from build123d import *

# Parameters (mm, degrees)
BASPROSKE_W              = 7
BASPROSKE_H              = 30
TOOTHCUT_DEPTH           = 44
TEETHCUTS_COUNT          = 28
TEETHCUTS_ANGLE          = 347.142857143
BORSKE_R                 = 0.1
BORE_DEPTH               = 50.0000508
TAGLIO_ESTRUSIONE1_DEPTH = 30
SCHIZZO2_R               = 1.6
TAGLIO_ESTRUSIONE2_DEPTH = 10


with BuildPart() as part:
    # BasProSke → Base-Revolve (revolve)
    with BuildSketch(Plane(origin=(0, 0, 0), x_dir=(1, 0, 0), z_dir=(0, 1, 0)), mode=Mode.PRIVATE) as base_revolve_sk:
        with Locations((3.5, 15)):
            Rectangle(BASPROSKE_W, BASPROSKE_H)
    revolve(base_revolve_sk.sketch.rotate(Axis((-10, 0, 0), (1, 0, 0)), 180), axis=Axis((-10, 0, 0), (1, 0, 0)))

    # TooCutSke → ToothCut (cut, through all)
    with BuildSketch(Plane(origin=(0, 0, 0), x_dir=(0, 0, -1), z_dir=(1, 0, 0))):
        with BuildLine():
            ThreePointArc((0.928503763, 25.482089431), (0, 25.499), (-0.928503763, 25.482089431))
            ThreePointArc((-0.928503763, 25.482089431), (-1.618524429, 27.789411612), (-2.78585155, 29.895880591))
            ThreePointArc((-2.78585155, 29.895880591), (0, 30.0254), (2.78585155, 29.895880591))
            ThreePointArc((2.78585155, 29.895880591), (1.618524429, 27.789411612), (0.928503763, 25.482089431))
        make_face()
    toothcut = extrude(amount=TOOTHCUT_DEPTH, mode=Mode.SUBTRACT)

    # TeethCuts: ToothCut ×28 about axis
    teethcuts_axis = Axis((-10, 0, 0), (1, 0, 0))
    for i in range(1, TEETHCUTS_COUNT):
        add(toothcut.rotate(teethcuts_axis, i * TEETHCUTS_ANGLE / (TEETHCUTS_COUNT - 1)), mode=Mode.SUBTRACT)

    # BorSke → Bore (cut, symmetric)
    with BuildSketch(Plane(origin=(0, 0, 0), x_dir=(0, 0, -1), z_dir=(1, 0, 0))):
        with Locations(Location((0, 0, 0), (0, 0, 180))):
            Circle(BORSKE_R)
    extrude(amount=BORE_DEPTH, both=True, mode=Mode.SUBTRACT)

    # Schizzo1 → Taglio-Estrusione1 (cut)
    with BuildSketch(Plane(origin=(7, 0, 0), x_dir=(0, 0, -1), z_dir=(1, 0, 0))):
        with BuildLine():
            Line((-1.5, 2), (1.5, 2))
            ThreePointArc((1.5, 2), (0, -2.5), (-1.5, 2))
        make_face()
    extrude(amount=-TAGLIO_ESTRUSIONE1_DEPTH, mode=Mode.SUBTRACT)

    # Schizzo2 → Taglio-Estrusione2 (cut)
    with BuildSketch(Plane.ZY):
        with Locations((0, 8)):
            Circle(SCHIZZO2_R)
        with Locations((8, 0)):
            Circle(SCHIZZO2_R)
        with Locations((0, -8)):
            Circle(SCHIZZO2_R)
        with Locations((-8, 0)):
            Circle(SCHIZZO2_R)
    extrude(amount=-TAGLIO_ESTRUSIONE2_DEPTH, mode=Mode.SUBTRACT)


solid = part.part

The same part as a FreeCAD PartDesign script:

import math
import FreeCAD as App
import Part
import Sketcher


def add_polygon(sketch, points):
    """Adds a closed chain of lines whose ends are joined by coincident constraints."""
    first, n = sketch.GeometryCount, len(points)
    for a, b in zip(points, points[1:] + points[:1]):
        sketch.addGeometry(Part.LineSegment(App.Vector(*a, 0), App.Vector(*b, 0)), False)
    for i in range(n):
        sketch.addConstraint(Sketcher.Constraint("Coincident", first + i, 2, first + (i + 1) % n, 1))

doc = App.newDocument("Part")
body = doc.addObject("PartDesign::Body", "Body")

# Sketch on XZ plane
sketch1 = body.newObject("Sketcher::SketchObject", "Sketch")
sketch1.AttachmentSupport = (doc.getObject("XZ_Plane"), [""])
sketch1.MapMode = "FlatFace"
add_polygon(sketch1, [(0, -30), (0, 0), (7, 0), (7, -30)])  # lines 0-3
sketch1.addConstraint([
    Sketcher.Constraint("Vertical", 0),
    Sketcher.Constraint("Horizontal", 1),
    Sketcher.Constraint("Vertical", 2),
    Sketcher.Constraint("Horizontal", 3),
    Sketcher.Constraint("Coincident", 0, 2, -1, 1),
    Sketcher.Constraint("DistanceX", 1, 1, 1, 2, 7.0),
    Sketcher.Constraint("DistanceY", 0, 1, 0, 2, 30.0),
])
revolution = body.newObject("PartDesign::Revolution", "Revolution")
revolution.Profile = sketch1
revolution.ReferenceAxis = (sketch1, ["H_Axis"])
revolution.Angle = 360

# Sketch on YZ plane
sketch2 = body.newObject("Sketcher::SketchObject", "Sketch001")
sketch2.AttachmentSupport = (doc.getObject("YZ_Plane"), [""])
sketch2.MapMode = "FlatFace"
sketch2.addGeometry([
    Part.ArcOfCircle(Part.Circle(App.Vector(0, 0, 0), App.Vector(0, 0, 1), 25.5), math.radians(-2.09), math.radians(2.09)),
    Part.ArcOfCircle(Part.Circle(App.Vector(23.4, -11.9, 0), App.Vector(0, 0, 1), 11.2), math.radians(55), math.radians(80)),
    Part.ArcOfCircle(Part.Circle(App.Vector(0, 0, 0), App.Vector(0, 0, 1), 30), math.radians(-5.32), math.radians(5.32)),
    Part.ArcOfCircle(Part.Circle(App.Vector(23.4, 11.9, 0), App.Vector(0, 0, 1), 11.2), math.radians(-80), math.radians(-55)),
], False)
sketch2.addConstraint([
    Sketcher.Constraint("Coincident", 0, 1, 1, 2),
    Sketcher.Constraint("Coincident", 1, 1, 2, 1),
    Sketcher.Constraint("Coincident", 2, 2, 3, 2),
    Sketcher.Constraint("Coincident", 3, 1, 0, 2),
    Sketcher.Constraint("Coincident", 0, 3, -1, 1),
    Sketcher.Constraint("Coincident", 2, 3, -1, 1),
    Sketcher.Constraint("Equal", 1, 3),
    Sketcher.Constraint("Symmetric", 1, 3, 3, 3, -1),
    Sketcher.Constraint("Radius", 1, 11.2),
    Sketcher.Constraint("Radius", 0, 25.499),
    Sketcher.Constraint("Radius", 2, 30.0254),
    Sketcher.Constraint("DistanceY", 1, 3, 1, 1, 9.155901),
    Sketcher.Constraint("DistanceX", -1, 1, 1, 3, 23.44534),
])
pocket1 = body.newObject("PartDesign::Pocket", "Pocket")
pocket1.Profile = sketch2
pocket1.Type = "ThroughAll"
pocket1.Reversed = True
doc.recompute()

polarpattern = body.newObject("PartDesign::PolarPattern", "PolarPattern")
polarpattern.Originals = [pocket1]
polarpattern.Axis = (doc.getObject("X_Axis"), [""])
polarpattern.Angle = 360
polarpattern.Occurrences = 28
body.Tip = polarpattern

# Sketch on YZ plane
sketch3 = body.newObject("Sketcher::SketchObject", "Sketch002")
sketch3.AttachmentSupport = (doc.getObject("YZ_Plane"), [""])
sketch3.MapMode = "FlatFace"
sketch3.addGeometry(Part.Circle(App.Vector(0, 0, 0), App.Vector(0, 0, 1), 0.1), False)
sketch3.addConstraint([
    Sketcher.Constraint("Coincident", 0, 3, -1, 1),
    Sketcher.Constraint("Diameter", 0, 0.2),
])
pocket2 = body.newObject("PartDesign::Pocket", "Pocket001")
pocket2.Profile = sketch3
pocket2.Length = 100.000102
pocket2.Midplane = True

# Sketch on YZ plane
sketch4 = body.newObject("Sketcher::SketchObject", "Sketch003")
sketch4.AttachmentSupport = (doc.getObject("YZ_Plane"), [""])
sketch4.MapMode = "FlatFace"
sketch4.AttachmentOffset = App.Placement(App.Vector(0, 0, 7), App.Rotation())
sketch4.addGeometry([
    Part.LineSegment(App.Vector(2, -1.5, 0), App.Vector(2, 1.5, 0)),
    Part.ArcOfCircle(Part.Circle(App.Vector(0, 0, 0), App.Vector(0, 0, 1), 2.5), math.radians(37), math.radians(323)),
], False)
sketch4.addConstraint([
    Sketcher.Constraint("Coincident", 0, 1, 1, 2),
    Sketcher.Constraint("Coincident", 1, 1, 0, 2),
    Sketcher.Constraint("Vertical", 0),
    Sketcher.Constraint("Coincident", 1, 3, -1, 1),
    Sketcher.Constraint("Radius", 1, 2.5),
    Sketcher.Constraint("DistanceY", 0, 1, 0, 2, 3.0),
])
pocket3 = body.newObject("PartDesign::Pocket", "Pocket002")
pocket3.Profile = sketch4
pocket3.Length = 30

# Sketch on YZ plane
sketch5 = body.newObject("Sketcher::SketchObject", "Sketch004")
sketch5.AttachmentSupport = (doc.getObject("YZ_Plane"), [""])
sketch5.MapMode = "FlatFace"
sketch5.addGeometry([
    Part.Circle(App.Vector(8, 0, 0), App.Vector(0, 0, 1), 1.6),
    Part.Circle(App.Vector(0, 8, 0), App.Vector(0, 0, 1), 1.6),
    Part.Circle(App.Vector(-8, 0, 0), App.Vector(0, 0, 1), 1.6),
    Part.Circle(App.Vector(0, -8, 0), App.Vector(0, 0, 1), 1.6),
], False)
sketch5.addConstraint([
    Sketcher.Constraint("Equal", 0, 1),
    Sketcher.Constraint("Equal", 1, 2),
    Sketcher.Constraint("Equal", 2, 3),
    Sketcher.Constraint("Symmetric", 0, 3, 2, 3, -1, 1),
    Sketcher.Constraint("Symmetric", 1, 3, 3, 3, -1, 1),
    Sketcher.Constraint("PointOnObject", 0, 3, -1),
    Sketcher.Constraint("PointOnObject", 1, 3, -2),
    Sketcher.Constraint("Diameter", 0, 3.2),
    Sketcher.Constraint("DistanceX", -1, 1, 0, 3, 8.0),
    Sketcher.Constraint("DistanceY", -1, 1, 1, 3, 8.0),
])
pocket4 = body.newObject("PartDesign::Pocket", "Pocket003")
pocket4.Profile = sketch5
pocket4.Length = 10
pocket4.Reversed = True

doc.recompute()
